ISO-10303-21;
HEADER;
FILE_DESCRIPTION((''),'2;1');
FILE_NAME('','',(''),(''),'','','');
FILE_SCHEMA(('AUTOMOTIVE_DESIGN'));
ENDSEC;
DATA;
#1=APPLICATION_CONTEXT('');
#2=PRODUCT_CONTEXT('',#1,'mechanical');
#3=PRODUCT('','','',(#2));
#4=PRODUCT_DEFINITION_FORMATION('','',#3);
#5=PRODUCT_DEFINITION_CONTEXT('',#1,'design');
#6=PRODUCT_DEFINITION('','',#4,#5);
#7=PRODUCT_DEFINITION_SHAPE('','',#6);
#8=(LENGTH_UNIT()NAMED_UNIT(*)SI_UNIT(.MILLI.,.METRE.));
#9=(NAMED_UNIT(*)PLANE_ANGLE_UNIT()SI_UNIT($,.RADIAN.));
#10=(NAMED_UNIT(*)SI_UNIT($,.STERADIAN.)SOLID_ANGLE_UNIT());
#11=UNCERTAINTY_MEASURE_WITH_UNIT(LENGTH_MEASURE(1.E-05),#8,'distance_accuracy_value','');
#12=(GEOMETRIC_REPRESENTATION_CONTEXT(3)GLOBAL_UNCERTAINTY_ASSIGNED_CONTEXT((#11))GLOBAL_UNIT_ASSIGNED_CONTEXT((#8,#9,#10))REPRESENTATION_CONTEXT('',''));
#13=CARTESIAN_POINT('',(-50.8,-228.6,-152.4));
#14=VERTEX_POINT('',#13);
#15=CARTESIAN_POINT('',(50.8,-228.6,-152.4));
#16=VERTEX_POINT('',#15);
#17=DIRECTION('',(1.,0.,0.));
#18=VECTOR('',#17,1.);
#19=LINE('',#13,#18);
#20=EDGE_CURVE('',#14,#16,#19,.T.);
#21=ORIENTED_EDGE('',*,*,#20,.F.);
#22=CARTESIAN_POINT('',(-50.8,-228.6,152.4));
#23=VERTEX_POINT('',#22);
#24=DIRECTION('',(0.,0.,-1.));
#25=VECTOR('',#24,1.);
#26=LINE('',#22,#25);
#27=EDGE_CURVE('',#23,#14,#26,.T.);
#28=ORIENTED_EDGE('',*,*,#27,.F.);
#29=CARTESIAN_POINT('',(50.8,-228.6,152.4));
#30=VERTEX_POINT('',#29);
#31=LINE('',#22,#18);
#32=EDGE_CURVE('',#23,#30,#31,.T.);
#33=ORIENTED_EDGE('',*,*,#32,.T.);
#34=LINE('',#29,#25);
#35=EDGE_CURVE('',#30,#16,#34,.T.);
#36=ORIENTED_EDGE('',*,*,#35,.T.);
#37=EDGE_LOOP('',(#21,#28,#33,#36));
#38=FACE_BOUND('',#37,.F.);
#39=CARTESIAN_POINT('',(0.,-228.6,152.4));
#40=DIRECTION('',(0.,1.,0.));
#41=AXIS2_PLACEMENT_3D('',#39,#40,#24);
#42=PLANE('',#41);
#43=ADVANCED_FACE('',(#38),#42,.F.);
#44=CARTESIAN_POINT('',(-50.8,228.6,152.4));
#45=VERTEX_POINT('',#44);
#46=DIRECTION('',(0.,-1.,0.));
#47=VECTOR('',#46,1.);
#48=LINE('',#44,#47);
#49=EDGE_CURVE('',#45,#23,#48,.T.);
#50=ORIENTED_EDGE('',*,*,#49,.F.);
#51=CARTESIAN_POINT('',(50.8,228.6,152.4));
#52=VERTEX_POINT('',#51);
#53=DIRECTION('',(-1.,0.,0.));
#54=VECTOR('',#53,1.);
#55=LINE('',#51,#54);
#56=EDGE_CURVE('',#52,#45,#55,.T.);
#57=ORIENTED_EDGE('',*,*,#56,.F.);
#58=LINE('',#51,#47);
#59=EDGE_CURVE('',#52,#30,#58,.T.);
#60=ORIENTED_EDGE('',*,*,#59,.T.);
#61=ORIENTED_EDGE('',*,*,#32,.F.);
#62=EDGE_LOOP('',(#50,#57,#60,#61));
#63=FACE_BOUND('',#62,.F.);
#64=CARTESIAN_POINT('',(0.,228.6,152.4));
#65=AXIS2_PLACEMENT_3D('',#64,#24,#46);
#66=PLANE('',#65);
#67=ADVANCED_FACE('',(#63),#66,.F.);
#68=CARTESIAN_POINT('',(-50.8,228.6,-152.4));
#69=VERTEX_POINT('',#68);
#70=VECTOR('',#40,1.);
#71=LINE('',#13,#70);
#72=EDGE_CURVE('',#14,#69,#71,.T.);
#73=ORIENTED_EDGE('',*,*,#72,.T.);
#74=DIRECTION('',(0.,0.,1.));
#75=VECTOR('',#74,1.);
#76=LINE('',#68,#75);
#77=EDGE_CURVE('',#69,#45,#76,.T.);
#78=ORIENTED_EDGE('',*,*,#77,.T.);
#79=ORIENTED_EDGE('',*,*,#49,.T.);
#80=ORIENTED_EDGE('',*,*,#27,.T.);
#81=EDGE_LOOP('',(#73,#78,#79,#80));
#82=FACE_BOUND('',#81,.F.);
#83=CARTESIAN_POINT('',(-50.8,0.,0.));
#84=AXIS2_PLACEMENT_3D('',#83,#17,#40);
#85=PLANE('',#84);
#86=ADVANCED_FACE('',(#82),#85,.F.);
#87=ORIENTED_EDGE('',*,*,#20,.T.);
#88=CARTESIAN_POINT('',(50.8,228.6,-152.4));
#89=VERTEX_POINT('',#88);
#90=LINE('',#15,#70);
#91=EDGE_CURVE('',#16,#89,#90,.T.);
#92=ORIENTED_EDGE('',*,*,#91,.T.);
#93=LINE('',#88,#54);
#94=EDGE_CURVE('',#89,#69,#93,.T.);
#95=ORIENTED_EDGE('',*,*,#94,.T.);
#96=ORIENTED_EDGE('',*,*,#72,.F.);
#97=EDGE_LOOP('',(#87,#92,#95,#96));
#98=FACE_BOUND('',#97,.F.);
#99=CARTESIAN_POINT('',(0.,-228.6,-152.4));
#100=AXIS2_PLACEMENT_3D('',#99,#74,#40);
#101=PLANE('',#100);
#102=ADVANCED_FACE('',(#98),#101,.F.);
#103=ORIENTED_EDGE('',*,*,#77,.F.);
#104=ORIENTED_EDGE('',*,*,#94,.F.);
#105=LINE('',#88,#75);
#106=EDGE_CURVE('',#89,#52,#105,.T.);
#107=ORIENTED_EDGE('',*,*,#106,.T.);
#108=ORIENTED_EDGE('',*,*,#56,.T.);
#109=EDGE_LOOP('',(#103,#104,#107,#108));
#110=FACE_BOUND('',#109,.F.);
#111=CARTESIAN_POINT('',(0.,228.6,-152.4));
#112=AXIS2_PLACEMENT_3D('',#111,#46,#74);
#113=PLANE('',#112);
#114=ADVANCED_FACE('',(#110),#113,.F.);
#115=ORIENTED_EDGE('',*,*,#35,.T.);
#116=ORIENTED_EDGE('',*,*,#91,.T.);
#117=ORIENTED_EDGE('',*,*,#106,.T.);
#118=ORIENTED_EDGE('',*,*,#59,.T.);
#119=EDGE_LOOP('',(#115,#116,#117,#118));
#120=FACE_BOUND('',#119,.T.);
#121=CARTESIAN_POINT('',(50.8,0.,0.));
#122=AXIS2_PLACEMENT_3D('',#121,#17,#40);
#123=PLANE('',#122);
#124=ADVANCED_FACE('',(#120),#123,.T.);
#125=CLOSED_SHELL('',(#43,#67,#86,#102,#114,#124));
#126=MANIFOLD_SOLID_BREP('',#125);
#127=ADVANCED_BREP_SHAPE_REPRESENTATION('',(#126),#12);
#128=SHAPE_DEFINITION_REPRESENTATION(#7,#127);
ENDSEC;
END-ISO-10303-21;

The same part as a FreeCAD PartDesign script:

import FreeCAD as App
import Part
import Sketcher
Q = App.Units.Quantity

doc = App.newDocument("Part")
body = doc.addObject("PartDesign::Body", "Body")

# Sketch on YZ plane
sketch1 = doc.addObject("Sketcher::SketchObject", "Sketch")
body.addObject(sketch1)
sketch1.AttachmentSupport = (doc.YZ_Plane, [""])
sketch1.MapMode = "FlatFace"
sketch1.addGeometry([
    Part.LineSegment(App.Vector(229, 152, 0), App.Vector(-229, 152, 0)),
    Part.LineSegment(App.Vector(-229, 152, 0), App.Vector(-229, -152, 0)),
    Part.LineSegment(App.Vector(-229, -152, 0), App.Vector(229, -152, 0)),
    Part.LineSegment(App.Vector(229, -152, 0), App.Vector(229, 152, 0)),
], False)
sketch1.addConstraint([
    Sketcher.Constraint("Coincident", 0, 2, 1, 1),
    Sketcher.Constraint("Coincident", 1, 2, 2, 1),
    Sketcher.Constraint("Coincident", 2, 2, 3, 1),
    Sketcher.Constraint("Coincident", 3, 2, 0, 1),
    Sketcher.Constraint("Horizontal", 0),
    Sketcher.Constraint("Vertical", 1),
    Sketcher.Constraint("Horizontal", 2),
    Sketcher.Constraint("Vertical", 3),
    Sketcher.Constraint("Symmetric", 0, 2, 2, 2, -1, 1),
    Sketcher.Constraint("DistanceX", 0, 2, 0, 1, Q("18 in")),
    Sketcher.Constraint("DistanceY", 1, 2, 1, 1, Q("12 in")),
])
pad1 = doc.addObject("PartDesign::Pad", "Pad")
body.addObject(pad1)
pad1.Profile = sketch1
pad1.Length = Q("4 in")
pad1.Midplane = True

doc.recompute()
